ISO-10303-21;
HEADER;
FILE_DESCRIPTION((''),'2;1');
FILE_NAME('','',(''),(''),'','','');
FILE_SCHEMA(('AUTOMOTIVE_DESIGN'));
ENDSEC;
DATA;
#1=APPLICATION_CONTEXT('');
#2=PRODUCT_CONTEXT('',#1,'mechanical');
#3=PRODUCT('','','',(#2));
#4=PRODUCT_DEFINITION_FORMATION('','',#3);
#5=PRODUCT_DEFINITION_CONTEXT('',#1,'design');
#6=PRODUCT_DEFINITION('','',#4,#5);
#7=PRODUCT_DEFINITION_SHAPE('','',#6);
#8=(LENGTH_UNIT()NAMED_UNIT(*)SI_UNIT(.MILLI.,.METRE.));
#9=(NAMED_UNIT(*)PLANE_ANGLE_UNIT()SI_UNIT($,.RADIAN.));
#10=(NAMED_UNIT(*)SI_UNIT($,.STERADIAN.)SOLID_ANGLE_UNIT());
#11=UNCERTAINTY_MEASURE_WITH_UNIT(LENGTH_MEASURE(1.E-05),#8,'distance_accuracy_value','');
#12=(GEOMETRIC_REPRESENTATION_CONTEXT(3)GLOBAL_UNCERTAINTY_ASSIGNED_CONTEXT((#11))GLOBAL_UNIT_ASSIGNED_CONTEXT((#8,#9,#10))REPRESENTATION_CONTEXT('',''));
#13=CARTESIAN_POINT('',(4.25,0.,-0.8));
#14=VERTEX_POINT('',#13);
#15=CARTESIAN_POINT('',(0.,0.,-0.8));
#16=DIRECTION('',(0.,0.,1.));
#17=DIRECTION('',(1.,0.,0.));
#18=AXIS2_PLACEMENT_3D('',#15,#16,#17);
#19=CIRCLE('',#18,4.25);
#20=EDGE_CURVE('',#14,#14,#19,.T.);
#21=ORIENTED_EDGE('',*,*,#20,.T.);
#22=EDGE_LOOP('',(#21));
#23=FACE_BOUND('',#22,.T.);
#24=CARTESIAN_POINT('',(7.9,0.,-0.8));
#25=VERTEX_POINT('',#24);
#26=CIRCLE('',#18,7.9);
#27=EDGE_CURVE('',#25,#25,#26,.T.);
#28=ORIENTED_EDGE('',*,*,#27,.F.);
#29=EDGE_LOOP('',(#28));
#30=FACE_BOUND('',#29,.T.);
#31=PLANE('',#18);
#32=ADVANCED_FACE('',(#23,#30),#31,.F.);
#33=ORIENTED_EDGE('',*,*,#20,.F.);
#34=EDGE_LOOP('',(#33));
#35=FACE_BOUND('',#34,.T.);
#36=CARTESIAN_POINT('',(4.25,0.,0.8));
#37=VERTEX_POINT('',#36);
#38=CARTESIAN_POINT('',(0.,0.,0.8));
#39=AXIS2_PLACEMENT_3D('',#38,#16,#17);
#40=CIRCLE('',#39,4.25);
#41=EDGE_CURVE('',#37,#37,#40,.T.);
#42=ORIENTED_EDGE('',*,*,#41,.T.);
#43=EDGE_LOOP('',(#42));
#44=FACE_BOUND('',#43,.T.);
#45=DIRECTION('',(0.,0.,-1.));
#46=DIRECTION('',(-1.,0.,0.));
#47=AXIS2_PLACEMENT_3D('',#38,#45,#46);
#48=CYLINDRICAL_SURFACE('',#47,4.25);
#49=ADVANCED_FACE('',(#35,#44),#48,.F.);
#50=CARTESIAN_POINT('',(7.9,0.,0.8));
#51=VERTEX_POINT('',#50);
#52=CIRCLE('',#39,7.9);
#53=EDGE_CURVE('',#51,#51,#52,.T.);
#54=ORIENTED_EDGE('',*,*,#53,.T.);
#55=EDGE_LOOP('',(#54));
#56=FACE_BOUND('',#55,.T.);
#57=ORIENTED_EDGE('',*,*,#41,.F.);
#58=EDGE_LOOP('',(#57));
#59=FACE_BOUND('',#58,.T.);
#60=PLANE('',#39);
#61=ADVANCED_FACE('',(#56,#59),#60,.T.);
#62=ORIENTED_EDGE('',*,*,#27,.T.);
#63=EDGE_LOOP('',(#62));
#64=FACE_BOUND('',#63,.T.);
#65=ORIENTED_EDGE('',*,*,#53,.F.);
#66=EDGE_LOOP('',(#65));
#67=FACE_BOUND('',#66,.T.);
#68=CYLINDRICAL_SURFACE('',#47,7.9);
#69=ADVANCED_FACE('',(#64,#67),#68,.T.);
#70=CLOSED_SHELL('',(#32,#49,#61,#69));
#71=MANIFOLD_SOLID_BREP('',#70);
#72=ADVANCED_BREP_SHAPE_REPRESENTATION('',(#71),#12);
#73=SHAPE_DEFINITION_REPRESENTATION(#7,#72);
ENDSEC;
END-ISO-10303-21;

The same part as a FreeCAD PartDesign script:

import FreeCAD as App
import Part
import Sketcher
from FreeCAD import Vector
Q = App.Units.Quantity

doc = App.newDocument("Part")
params = doc.addObject("Spreadsheet::Sheet", "Params")
for row, (alias, value) in enumerate([
    ("sketch1_diameter", "15.8 mm"),
    ("sketch1_diameter2", "8.5 mm"),
    ("pad1_length", "1.6 mm"),
], start=1):
    params.set(f"A{row}", alias)
    params.set(f"B{row}", "=" + value)
    params.setAlias(f"B{row}", alias)

body = doc.addObject("PartDesign::Body", "Body")

# Sketch on XY plane
sketch1 = body.newObject("Sketcher::SketchObject", "Sketch")
sketch1.AttachmentSupport = (doc.getObject("XY_Plane"), [""])
sketch1.MapMode = "FlatFace"
sketch1.addGeometry(Part.Circle(Vector(0, 0, 0), Vector(0, 0, 1), 7.9), False)
sketch1.addGeometry(Part.Circle(Vector(0, 0, 0), Vector(0, 0, 1), 4.2), False)
sketch1.addConstraint(Sketcher.Constraint("Coincident", 0, 3, -1, 1))
sketch1.addConstraint(Sketcher.Constraint("Coincident", 1, 3, -1, 1))
sketch1.addConstraint(Sketcher.Constraint("Diameter", 0, Q("15.8 mm")))
sketch1.addConstraint(Sketcher.Constraint("Diameter", 1, Q("8.5 mm")))
sketch1.setExpression("Constraints[2]", "Params.sketch1_diameter")
sketch1.setExpression("Constraints[3]", "Params.sketch1_diameter2")
pad1 = body.newObject("PartDesign::Pad", "Pad")
pad1.Profile = sketch1
pad1.setExpression("Length", "Params.pad1_length")
pad1.Midplane = True

doc.recompute()
